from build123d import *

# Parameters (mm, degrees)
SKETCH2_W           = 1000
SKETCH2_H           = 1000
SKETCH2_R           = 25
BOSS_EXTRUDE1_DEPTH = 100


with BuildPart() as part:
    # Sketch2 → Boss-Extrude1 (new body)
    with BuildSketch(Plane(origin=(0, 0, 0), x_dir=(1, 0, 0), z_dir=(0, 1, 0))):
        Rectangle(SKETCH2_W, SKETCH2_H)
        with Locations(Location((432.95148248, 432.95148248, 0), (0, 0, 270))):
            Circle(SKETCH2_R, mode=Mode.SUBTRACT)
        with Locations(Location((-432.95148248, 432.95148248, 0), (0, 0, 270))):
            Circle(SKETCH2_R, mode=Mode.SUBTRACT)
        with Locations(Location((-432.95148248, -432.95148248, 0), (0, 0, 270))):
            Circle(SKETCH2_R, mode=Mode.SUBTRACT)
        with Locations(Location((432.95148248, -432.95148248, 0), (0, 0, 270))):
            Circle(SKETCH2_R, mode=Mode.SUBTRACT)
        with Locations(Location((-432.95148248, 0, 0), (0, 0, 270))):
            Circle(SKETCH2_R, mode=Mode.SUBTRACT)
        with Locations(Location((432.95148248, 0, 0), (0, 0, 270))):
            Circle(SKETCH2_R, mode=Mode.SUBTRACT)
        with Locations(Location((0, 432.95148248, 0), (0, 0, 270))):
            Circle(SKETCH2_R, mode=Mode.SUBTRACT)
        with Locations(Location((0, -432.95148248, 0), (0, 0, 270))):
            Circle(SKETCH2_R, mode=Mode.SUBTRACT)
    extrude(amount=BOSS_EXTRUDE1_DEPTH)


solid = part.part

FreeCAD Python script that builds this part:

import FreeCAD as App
import Part
import Sketcher
from FreeCAD import Vector


def add_polygon(sketch, points):
    """Adds a closed chain of lines whose ends are joined by coincident constraints."""
    first, n = sketch.GeometryCount, len(points)
    for a, b in zip(points, points[1:] + points[:1]):
        sketch.addGeometry(Part.LineSegment(App.Vector(*a, 0), App.Vector(*b, 0)), False)
    for i in range(n):
        sketch.addConstraint(Sketcher.Constraint("Coincident", first + i, 2, first + (i + 1) % n, 1))

doc = App.newDocument("Part")
body = doc.addObject("PartDesign::Body", "Body")

# Sketch on XZ plane
sketch1 = body.newObject("Sketcher::SketchObject", "Sketch")
sketch1.AttachmentSupport = (doc.getObject("XZ_Plane"), [""])
sketch1.MapMode = "FlatFace"
add_polygon(sketch1, [(-500, -500), (-500, 500), (500, 500), (500, -500)])  # lines 0-3
sketch1.addGeometry(Part.Circle(Vector(-432.951482, 432.951482, 0), Vector(0, 0, 1), 25), False)  # 4
sketch1.addGeometry(Part.Circle(Vector(0, 432.951482, 0), Vector(0, 0, 1), 25), False)  # 5
sketch1.addGeometry(Part.Circle(Vector(432.951482, 432.951482, 0), Vector(0, 0, 1), 25), False)  # 6
sketch1.addGeometry(Part.Circle(Vector(-432.951482, 0, 0), Vector(0, 0, 1), 25), False)  # 7
sketch1.addGeometry(Part.Circle(Vector(-432.951482, -432.951482, 0), Vector(0, 0, 1), 25), False)  # 8
sketch1.addGeometry(Part.Circle(Vector(432.951482, 0, 0), Vector(0, 0, 1), 25), False)  # 9
sketch1.addGeometry(Part.Circle(Vector(0, -432.951482, 0), Vector(0, 0, 1), 25), False)  # 10
sketch1.addGeometry(Part.Circle(Vector(432.951482, -432.951482, 0), Vector(0, 0, 1), 25), False)  # 11
sketch1.addConstraint(Sketcher.Constraint("Vertical", 0))
sketch1.addConstraint(Sketcher.Constraint("Horizontal", 1))
sketch1.addConstraint(Sketcher.Constraint("Vertical", 2))
sketch1.addConstraint(Sketcher.Constraint("Horizontal", 3))
sketch1.addConstraint(Sketcher.Constraint("Equal", 4, 5))
sketch1.addConstraint(Sketcher.Constraint("Equal", 5, 6))
sketch1.addConstraint(Sketcher.Constraint("Equal", 6, 7))
sketch1.addConstraint(Sketcher.Constraint("Equal", 7, 8))
sketch1.addConstraint(Sketcher.Constraint("Equal", 8, 9))
sketch1.addConstraint(Sketcher.Constraint("Equal", 9, 10))
sketch1.addConstraint(Sketcher.Constraint("Equal", 10, 11))
sketch1.addConstraint(Sketcher.Constraint("Symmetric", 6, 3, 8, 3, -1, 1))
sketch1.addConstraint(Sketcher.Constraint("Symmetric", 7, 3, 9, 3, -1, 1))
sketch1.addConstraint(Sketcher.Constraint("Symmetric", 5, 3, 10, 3, -1, 1))
sketch1.addConstraint(Sketcher.Constraint("Symmetric", 4, 3, 11, 3, -1, 1))
sketch1.addConstraint(Sketcher.Constraint("Symmetric", 0, 2, 2, 2, -1, 1))
sketch1.addConstraint(Sketcher.Constraint("Symmetric", 4, 3, 6, 3, -2))
sketch1.addConstraint(Sketcher.Constraint("PointOnObject", 5, 3, -2))
sketch1.addConstraint(Sketcher.Constraint("PointOnObject", 7, 3, -1))
sketch1.addConstraint(Sketcher.Constraint("Horizontal", 4, 3, 5, 3))
sketch1.addConstraint(Sketcher.Constraint("Vertical", 4, 3, 7, 3))
sketch1.addConstraint(Sketcher.Constraint("Equal", 3, 0))
sketch1.addConstraint(Sketcher.Constraint("Diameter", 4, 50.0))
sketch1.addConstraint(Sketcher.Constraint("DistanceX", 1, 1, 1, 2, 1000.0))
sketch1.addConstraint(Sketcher.Constraint("DistanceX", 4, 3, -1, 1, 432.951482))
sketch1.addConstraint(Sketcher.Constraint("DistanceY", -1, 1, 4, 3, 432.951482))
pad1 = body.newObject("PartDesign::Pad", "Pad")
pad1.Profile = sketch1
pad1.Length = 100
pad1.Reversed = True

doc.recompute()
